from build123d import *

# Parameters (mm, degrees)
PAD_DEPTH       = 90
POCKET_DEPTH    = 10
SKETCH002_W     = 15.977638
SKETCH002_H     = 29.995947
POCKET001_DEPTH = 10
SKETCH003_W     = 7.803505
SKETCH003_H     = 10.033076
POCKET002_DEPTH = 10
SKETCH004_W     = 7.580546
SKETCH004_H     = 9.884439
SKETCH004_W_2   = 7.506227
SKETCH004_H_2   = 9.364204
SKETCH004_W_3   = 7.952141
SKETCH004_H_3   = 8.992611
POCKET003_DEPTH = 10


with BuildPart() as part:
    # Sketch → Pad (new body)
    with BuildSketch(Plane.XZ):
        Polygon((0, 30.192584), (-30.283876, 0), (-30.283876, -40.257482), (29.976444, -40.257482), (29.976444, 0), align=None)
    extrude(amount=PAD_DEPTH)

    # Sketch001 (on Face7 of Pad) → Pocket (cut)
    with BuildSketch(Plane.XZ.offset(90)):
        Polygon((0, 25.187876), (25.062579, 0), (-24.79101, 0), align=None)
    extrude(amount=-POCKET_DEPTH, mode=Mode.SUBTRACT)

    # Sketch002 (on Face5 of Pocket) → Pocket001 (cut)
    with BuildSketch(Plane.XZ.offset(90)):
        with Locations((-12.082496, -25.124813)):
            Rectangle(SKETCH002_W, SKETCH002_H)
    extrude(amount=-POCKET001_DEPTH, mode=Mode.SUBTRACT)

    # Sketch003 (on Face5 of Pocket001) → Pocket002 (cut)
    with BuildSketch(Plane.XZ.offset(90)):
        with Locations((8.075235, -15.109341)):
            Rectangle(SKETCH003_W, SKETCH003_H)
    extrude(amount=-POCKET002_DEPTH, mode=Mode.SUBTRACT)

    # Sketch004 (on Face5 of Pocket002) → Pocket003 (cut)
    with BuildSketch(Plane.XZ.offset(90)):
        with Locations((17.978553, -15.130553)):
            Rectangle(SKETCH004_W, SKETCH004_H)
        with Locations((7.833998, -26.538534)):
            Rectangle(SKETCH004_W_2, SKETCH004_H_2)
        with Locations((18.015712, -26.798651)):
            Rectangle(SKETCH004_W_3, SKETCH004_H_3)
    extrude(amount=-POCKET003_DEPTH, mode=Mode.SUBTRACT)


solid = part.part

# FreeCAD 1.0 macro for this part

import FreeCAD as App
import Part
import Sketcher

V = App.Vector
Q = App.Units.Quantity


def add_polygon(sketch, points):
    """Adds a closed chain of lines whose ends are joined by coincident constraints."""
    first, n = sketch.GeometryCount, len(points)
    for a, b in zip(points, points[1:] + points[:1]):
        sketch.addGeometry(Part.LineSegment(App.Vector(*a, 0), App.Vector(*b, 0)), False)
    for i in range(n):
        sketch.addConstraint(Sketcher.Constraint("Coincident", first + i, 2, first + (i + 1) % n, 1))

doc = App.newDocument("Part")
body = doc.addObject("PartDesign::Body", "Body")

# Sketch on XZ plane
sketch1 = body.newObject("Sketcher::SketchObject", "Sketch")
sketch1.AttachmentSupport = (doc.getObject("XZ_Plane"), [""])
sketch1.MapMode = "FlatFace"
add_polygon(sketch1, [(0, 30), (-30, 0), (-30, -40), (30, -40), (30, 0)])  # lines 0-4
sketch1.addConstraint([
    Sketcher.Constraint("Vertical", 1),
    Sketcher.Constraint("Horizontal", 2),
    Sketcher.Constraint("Vertical", 3),
    Sketcher.Constraint("PointOnObject", 0, 2, -1),
    Sketcher.Constraint("PointOnObject", 3, 2, -1),
    Sketcher.Constraint("PointOnObject", 4, 2, -2),
    Sketcher.Constraint("DistanceX", 2, 1, 2, 2, Q("60.26032 mm")),
    Sketcher.Constraint("DistanceY", 1, 2, 1, 1, Q("40.257482 mm")),
    Sketcher.Constraint("Distance", 0, Q("42.763364 mm")),
    Sketcher.Constraint("Distance", 4, Q("42.546202 mm")),
])
pad1 = body.newObject("PartDesign::Pad", "Pad")
pad1.Profile = sketch1
pad1.Length = 90

# Sketch on XZ plane
sketch2 = body.newObject("Sketcher::SketchObject", "Sketch001")
sketch2.AttachmentSupport = (doc.getObject("XZ_Plane"), [""])
sketch2.MapMode = "FlatFace"
sketch2.AttachmentOffset = App.Placement(V(0, 0, 90), App.Rotation())
add_polygon(sketch2, [(25, 0), (0, 25), (-25, 0)])  # lines 0-2
sketch2.addConstraint([
    Sketcher.Constraint("Horizontal", 2),
    Sketcher.Constraint("PointOnObject", 0, 2, -2),
    Sketcher.Constraint("PointOnObject", 1, 2, -1),
    Sketcher.Constraint("DistanceX", 2, 1, 2, 2, Q("49.853589 mm")),
    Sketcher.Constraint("DistanceX", 1, 2, -1, 1, Q("24.79101 mm")),
    Sketcher.Constraint("Distance", 0, Q("35.532548 mm")),
])
pocket1 = body.newObject("PartDesign::Pocket", "Pocket")
pocket1.Profile = sketch2
pocket1.Length = 10

# Sketch on XZ plane
sketch3 = body.newObject("Sketcher::SketchObject", "Sketch002")
sketch3.AttachmentSupport = (doc.getObject("XZ_Plane"), [""])
sketch3.MapMode = "FlatFace"
sketch3.AttachmentOffset = App.Placement(V(0, 0, 90), App.Rotation())
add_polygon(sketch3, [(-20, -10), (-20, -40), (-4, -40), (-4, -10)])  # lines 0-3
sketch3.addConstraint([
    Sketcher.Constraint("Vertical", 0),
    Sketcher.Constraint("Horizontal", 1),
    Sketcher.Constraint("Vertical", 2),
    Sketcher.Constraint("Horizontal", 3),
    Sketcher.Constraint("DistanceX", 1, 1, 1, 2, Q("15.977638 mm")),
    Sketcher.Constraint("DistanceY", 0, 2, 0, 1, Q("29.995947 mm")),
    Sketcher.Constraint("DistanceY", 2, 2, -1, 1, Q("10.12684 mm")),
    Sketcher.Constraint("DistanceX", 0, 2, -1, 1, Q("20.071315 mm")),
])
pocket2 = body.newObject("PartDesign::Pocket", "Pocket001")
pocket2.Profile = sketch3
pocket2.Length = 10

# Sketch on XZ plane
sketch4 = body.newObject("Sketcher::SketchObject", "Sketch003")
sketch4.AttachmentSupport = (doc.getObject("XZ_Plane"), [""])
sketch4.MapMode = "FlatFace"
sketch4.AttachmentOffset = App.Placement(V(0, 0, 90), App.Rotation())
add_polygon(sketch4, [(4, -10), (4, -20), (12, -20), (12, -10)])  # lines 0-3
sketch4.addConstraint([
    Sketcher.Constraint("Vertical", 0),
    Sketcher.Constraint("Horizontal", 1),
    Sketcher.Constraint("Vertical", 2),
    Sketcher.Constraint("Horizontal", 3),
    Sketcher.Constraint("DistanceX", 1, 1, 1, 2, Q("7.803505 mm")),
    Sketcher.Constraint("DistanceY", 0, 2, 0, 1, Q("10.033076 mm")),
    Sketcher.Constraint("DistanceY", 0, 2, -1, 1, Q("20.125879 mm")),
    Sketcher.Constraint("DistanceX", -1, 1, 0, 2, Q("4.173483 mm")),
])
pocket3 = body.newObject("PartDesign::Pocket", "Pocket002")
pocket3.Profile = sketch4
pocket3.Length = 10

# Sketch on XZ plane
sketch5 = body.newObject("Sketcher::SketchObject", "Sketch004")
sketch5.AttachmentSupport = (doc.getObject("XZ_Plane"), [""])
sketch5.MapMode = "FlatFace"
sketch5.AttachmentOffset = App.Placement(V(0, 0, 90), App.Rotation())
add_polygon(sketch5, [(14, -10), (14, -20), (22, -20), (22, -10)])  # lines 0-3
add_polygon(sketch5, [(4, -22), (4, -31), (12, -31), (12, -22)])  # lines 4-7
add_polygon(sketch5, [(14, -22), (14, -31), (22, -31), (22, -22)])  # lines 8-11
sketch5.addConstraint([
    Sketcher.Constraint("Vertical", 0),
    Sketcher.Constraint("Horizontal", 1),
    Sketcher.Constraint("Vertical", 2),
    Sketcher.Constraint("Horizontal", 3),
    Sketcher.Constraint("Vertical", 4),
    Sketcher.Constraint("Horizontal", 5),
    Sketcher.Constraint("Vertical", 6),
    Sketcher.Constraint("Horizontal", 7),
    Sketcher.Constraint("Vertical", 8),
    Sketcher.Constraint("Horizontal", 9),
    Sketcher.Constraint("Vertical", 10),
    Sketcher.Constraint("Horizontal", 11),
    Sketcher.Constraint("DistanceX", 9, 1, 9, 2, Q("7.952141 mm")),
    Sketcher.Constraint("DistanceY", 0, 2, 0, 1, Q("9.884439 mm")),
    Sketcher.Constraint("DistanceY", 8, 2, 8, 1, Q("8.992611 mm")),
    Sketcher.Constraint("DistanceY", 6, 2, 3, 2, Q("11.668099 mm")),
    Sketcher.Constraint("DistanceX", 1, 1, 1, 2, Q("7.580546 mm")),
    Sketcher.Constraint("DistanceX", 5, 1, 5, 2, Q("7.506227 mm")),
    Sketcher.Constraint("DistanceY", 4, 2, 4, 1, Q("9.364204 mm")),
    Sketcher.Constraint("DistanceX", -1, 1, 0, 2, Q("14.18828 mm")),
    Sketcher.Constraint("DistanceX", -1, 1, 5, 2, Q("11.587112 mm")),
    Sketcher.Constraint("DistanceX", -1, 1, 8, 2, Q("14.039642 mm")),
    Sketcher.Constraint("DistanceY", 8, 2, 5, 2, Q("0.074321 mm")),
    Sketcher.Constraint("DistanceY", 0, 2, -1, 1, Q("20.072772 mm")),
])
pocket4 = body.newObject("PartDesign::Pocket", "Pocket003")
pocket4.Profile = sketch5
pocket4.Length = 10

doc.recompute()
